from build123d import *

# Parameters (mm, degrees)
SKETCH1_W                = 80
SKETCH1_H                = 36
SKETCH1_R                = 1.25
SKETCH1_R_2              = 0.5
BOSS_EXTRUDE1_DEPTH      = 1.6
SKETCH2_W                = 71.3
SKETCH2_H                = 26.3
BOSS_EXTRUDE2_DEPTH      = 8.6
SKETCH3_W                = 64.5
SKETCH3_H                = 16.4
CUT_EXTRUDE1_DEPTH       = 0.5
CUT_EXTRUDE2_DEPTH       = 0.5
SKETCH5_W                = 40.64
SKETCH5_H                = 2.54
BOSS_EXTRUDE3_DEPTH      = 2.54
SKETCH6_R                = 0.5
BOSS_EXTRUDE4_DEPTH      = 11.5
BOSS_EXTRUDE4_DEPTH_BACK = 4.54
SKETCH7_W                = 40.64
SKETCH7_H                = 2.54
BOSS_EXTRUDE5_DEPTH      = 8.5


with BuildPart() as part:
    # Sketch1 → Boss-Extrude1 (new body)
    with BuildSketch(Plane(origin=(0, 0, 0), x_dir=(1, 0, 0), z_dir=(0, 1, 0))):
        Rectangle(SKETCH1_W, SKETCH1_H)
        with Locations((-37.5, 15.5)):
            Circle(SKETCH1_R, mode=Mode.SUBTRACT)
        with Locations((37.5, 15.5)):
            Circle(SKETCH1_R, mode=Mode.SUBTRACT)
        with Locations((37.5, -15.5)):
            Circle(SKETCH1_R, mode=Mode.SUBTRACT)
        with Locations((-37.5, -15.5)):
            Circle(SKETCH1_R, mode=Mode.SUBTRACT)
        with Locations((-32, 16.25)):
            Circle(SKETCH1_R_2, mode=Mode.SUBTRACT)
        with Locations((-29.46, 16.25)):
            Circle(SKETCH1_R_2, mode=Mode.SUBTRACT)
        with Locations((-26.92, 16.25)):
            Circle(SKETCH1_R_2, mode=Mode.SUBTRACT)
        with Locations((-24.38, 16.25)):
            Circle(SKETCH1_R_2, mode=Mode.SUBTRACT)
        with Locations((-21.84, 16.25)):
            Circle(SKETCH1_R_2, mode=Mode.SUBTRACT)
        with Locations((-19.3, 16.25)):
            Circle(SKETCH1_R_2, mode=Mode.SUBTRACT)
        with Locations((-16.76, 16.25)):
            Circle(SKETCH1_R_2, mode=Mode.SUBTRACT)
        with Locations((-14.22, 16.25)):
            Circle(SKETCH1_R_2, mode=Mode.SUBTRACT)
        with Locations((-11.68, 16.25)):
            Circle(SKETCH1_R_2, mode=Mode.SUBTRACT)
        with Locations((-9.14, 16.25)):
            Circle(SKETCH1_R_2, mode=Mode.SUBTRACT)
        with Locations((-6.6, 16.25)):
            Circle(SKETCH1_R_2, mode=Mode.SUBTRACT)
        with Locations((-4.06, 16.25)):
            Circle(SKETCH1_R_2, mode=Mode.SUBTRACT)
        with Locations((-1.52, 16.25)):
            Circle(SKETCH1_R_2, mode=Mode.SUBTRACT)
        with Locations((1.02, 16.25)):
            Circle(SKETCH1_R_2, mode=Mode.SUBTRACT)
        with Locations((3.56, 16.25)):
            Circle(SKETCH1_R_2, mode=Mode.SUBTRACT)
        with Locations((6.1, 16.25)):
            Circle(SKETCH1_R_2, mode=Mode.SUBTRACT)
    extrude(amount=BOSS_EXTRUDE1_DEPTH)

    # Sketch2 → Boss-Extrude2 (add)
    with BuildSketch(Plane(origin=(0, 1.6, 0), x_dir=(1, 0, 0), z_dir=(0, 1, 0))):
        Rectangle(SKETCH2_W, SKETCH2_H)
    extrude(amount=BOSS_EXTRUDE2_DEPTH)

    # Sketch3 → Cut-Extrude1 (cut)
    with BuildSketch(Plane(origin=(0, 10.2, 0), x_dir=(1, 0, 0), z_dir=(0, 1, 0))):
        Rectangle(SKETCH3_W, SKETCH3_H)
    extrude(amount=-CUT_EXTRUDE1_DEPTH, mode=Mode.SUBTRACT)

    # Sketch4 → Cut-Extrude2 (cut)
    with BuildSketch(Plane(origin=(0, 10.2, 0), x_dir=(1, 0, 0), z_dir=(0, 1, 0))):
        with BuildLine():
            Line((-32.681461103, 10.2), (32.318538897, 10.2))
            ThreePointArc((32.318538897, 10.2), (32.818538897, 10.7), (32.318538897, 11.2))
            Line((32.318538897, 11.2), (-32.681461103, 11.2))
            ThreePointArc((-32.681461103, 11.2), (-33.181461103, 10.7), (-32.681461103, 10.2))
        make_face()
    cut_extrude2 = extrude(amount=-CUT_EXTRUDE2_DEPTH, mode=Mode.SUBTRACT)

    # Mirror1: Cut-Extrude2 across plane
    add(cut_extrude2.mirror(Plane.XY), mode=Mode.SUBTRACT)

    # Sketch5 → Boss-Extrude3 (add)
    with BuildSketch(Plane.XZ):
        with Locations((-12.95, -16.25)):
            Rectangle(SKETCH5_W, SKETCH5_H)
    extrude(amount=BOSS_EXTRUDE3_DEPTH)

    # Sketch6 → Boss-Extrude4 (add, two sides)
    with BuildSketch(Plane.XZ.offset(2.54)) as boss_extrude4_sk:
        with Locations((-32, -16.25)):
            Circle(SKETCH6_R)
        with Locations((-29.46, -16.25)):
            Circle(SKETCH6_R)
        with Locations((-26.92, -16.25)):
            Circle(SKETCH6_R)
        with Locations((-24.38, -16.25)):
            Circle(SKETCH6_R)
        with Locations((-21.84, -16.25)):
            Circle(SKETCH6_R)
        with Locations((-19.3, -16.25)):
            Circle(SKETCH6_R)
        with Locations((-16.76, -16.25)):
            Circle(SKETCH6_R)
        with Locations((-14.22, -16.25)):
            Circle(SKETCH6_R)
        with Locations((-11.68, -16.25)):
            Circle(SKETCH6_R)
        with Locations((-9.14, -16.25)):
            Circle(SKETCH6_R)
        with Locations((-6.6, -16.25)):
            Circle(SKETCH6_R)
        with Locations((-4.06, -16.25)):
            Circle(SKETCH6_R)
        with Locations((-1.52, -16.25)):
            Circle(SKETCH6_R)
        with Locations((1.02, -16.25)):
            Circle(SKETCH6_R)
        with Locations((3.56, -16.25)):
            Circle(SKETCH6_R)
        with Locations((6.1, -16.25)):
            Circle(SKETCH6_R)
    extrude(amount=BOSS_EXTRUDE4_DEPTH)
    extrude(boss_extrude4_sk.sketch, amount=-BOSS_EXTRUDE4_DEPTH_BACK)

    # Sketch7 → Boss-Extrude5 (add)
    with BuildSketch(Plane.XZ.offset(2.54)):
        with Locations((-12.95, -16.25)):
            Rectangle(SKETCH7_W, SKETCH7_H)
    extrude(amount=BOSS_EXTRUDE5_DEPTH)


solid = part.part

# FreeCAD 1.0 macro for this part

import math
import FreeCAD as App
import Part
import Sketcher

V = App.Vector


def add_polygon(sketch, points):
    """Adds a closed chain of lines whose ends are joined by coincident constraints."""
    first, n = sketch.GeometryCount, len(points)
    for a, b in zip(points, points[1:] + points[:1]):
        sketch.addGeometry(Part.LineSegment(App.Vector(*a, 0), App.Vector(*b, 0)), False)
    for i in range(n):
        sketch.addConstraint(Sketcher.Constraint("Coincident", first + i, 2, first + (i + 1) % n, 1))

doc = App.newDocument("Part")
body = doc.addObject("PartDesign::Body", "Body")

sketch1 = body.newObject("Sketcher::SketchObject", "Sketch")
sketch1.AttachmentSupport = (doc.getObject("XZ_Plane"), [""])
sketch1.MapMode = "FlatFace"
add_polygon(sketch1, [(-40, -18), (-40, 18), (40, 18), (40, -18)])
sketch1.addGeometry(Part.Circle(V(-37.5, 15.5, 0), V(0, 0, 1), 1.2), False)
sketch1.addGeometry(Part.Circle(V(37.5, 15.5, 0), V(0, 0, 1), 1.2), False)
sketch1.addGeometry(Part.Circle(V(-37.5, -15.5, 0), V(0, 0, 1), 1.2), False)
sketch1.addGeometry(Part.Circle(V(-32, -16.2, 0), V(0, 0, 1), 0.5), False)
sketch1.addGeometry(Part.Circle(V(-29.5, -16.2, 0), V(0, 0, 1), 0.5), False)
sketch1.addGeometry(Part.Circle(V(-26.9, -16.2, 0), V(0, 0, 1), 0.5), False)
sketch1.addGeometry(Part.Circle(V(-24.4, -16.2, 0), V(0, 0, 1), 0.5), False)
sketch1.addGeometry(Part.Circle(V(-21.8, -16.2, 0), V(0, 0, 1), 0.5), False)
sketch1.addGeometry(Part.Circle(V(-19.3, -16.2, 0), V(0, 0, 1), 0.5), False)
sketch1.addGeometry(Part.Circle(V(-16.8, -16.2, 0), V(0, 0, 1), 0.5), False)
sketch1.addGeometry(Part.Circle(V(-14.2, -16.2, 0), V(0, 0, 1), 0.5), False)
sketch1.addGeometry(Part.Circle(V(-11.7, -16.2, 0), V(0, 0, 1), 0.5), False)
sketch1.addGeometry(Part.Circle(V(-9.1, -16.2, 0), V(0, 0, 1), 0.5), False)
sketch1.addGeometry(Part.Circle(V(-6.6, -16.2, 0), V(0, 0, 1), 0.5), False)
sketch1.addGeometry(Part.Circle(V(-4.1, -16.2, 0), V(0, 0, 1), 0.5), False)
sketch1.addGeometry(Part.Circle(V(-1.5, -16.2, 0), V(0, 0, 1), 0.5), False)
sketch1.addGeometry(Part.Circle(V(1, -16.2, 0), V(0, 0, 1), 0.5), False)
sketch1.addGeometry(Part.Circle(V(3.6, -16.2, 0), V(0, 0, 1), 0.5), False)
sketch1.addGeometry(Part.Circle(V(6.1, -16.2, 0), V(0, 0, 1), 0.5), False)
sketch1.addGeometry(Part.Circle(V(37.5, -15.5, 0), V(0, 0, 1), 1.2), False)
sketch1.addConstraint(Sketcher.Constraint("Vertical", 0))
sketch1.addConstraint(Sketcher.Constraint("Horizontal", 1))
sketch1.addConstraint(Sketcher.Constraint("Vertical", 2))
sketch1.addConstraint(Sketcher.Constraint("Horizontal", 3))
sketch1.addConstraint(Sketcher.Constraint("Equal", 4, 5))
sketch1.addConstraint(Sketcher.Constraint("Equal", 5, 6))
sketch1.addConstraint(Sketcher.Constraint("Equal", 7, 8))
sketch1.addConstraint(Sketcher.Constraint("Equal", 8, 9))
sketch1.addConstraint(Sketcher.Constraint("Equal", 9, 10))
sketch1.addConstraint(Sketcher.Constraint("Equal", 10, 11))
sketch1.addConstraint(Sketcher.Constraint("Equal", 11, 12))
sketch1.addConstraint(Sketcher.Constraint("Equal", 12, 13))
sketch1.addConstraint(Sketcher.Constraint("Equal", 13, 14))
sketch1.addConstraint(Sketcher.Constraint("Equal", 14, 15))
sketch1.addConstraint(Sketcher.Constraint("Equal", 15, 16))
sketch1.addConstraint(Sketcher.Constraint("Equal", 16, 17))
sketch1.addConstraint(Sketcher.Constraint("Equal", 17, 18))
sketch1.addConstraint(Sketcher.Constraint("Equal", 18, 19))
sketch1.addConstraint(Sketcher.Constraint("Equal", 19, 20))
sketch1.addConstraint(Sketcher.Constraint("Equal", 20, 21))
sketch1.addConstraint(Sketcher.Constraint("Equal", 21, 22))
sketch1.addConstraint(Sketcher.Constraint("Equal", 6, 23))
sketch1.addConstraint(Sketcher.Constraint("Symmetric", 5, 3, 6, 3, -1, 1))
sketch1.addConstraint(Sketcher.Constraint("Symmetric", 4, 3, 23, 3, -1, 1))
sketch1.addConstraint(Sketcher.Constraint("Symmetric", 0, 2, 2, 2, -1, 1))
sketch1.addConstraint(Sketcher.Constraint("Symmetric", 4, 3, 5, 3, -2))
sketch1.addConstraint(Sketcher.Constraint("Horizontal", 7, 3, 8, 3))
sketch1.addConstraint(Sketcher.Constraint("Horizontal", 8, 3, 9, 3))
sketch1.addConstraint(Sketcher.Constraint("Horizontal", 9, 3, 10, 3))
sketch1.addConstraint(Sketcher.Constraint("Horizontal", 10, 3, 11, 3))
sketch1.addConstraint(Sketcher.Constraint("Horizontal", 11, 3, 12, 3))
sketch1.addConstraint(Sketcher.Constraint("Horizontal", 12, 3, 13, 3))
sketch1.addConstraint(Sketcher.Constraint("Horizontal", 13, 3, 14, 3))
sketch1.addConstraint(Sketcher.Constraint("Horizontal", 14, 3, 15, 3))
sketch1.addConstraint(Sketcher.Constraint("Horizontal", 15, 3, 16, 3))
sketch1.addConstraint(Sketcher.Constraint("Horizontal", 16, 3, 17, 3))
sketch1.addConstraint(Sketcher.Constraint("Horizontal", 17, 3, 18, 3))
sketch1.addConstraint(Sketcher.Constraint("Horizontal", 18, 3, 19, 3))
sketch1.addConstraint(Sketcher.Constraint("Horizontal", 19, 3, 20, 3))
sketch1.addConstraint(Sketcher.Constraint("Horizontal", 20, 3, 21, 3))
sketch1.addConstraint(Sketcher.Constraint("Horizontal", 21, 3, 22, 3))
sketch1.addConstraint(Sketcher.Constraint("Diameter", 7, 1.0))
sketch1.addConstraint(Sketcher.Constraint("Diameter", 4, 2.5))
sketch1.addConstraint(Sketcher.Constraint("DistanceX", 1, 1, 1, 2, 80.0))
sketch1.addConstraint(Sketcher.Constraint("DistanceY", 0, 1, 0, 2, 36.0))
sketch1.addConstraint(Sketcher.Constraint("DistanceX", 7, 3, -1, 1, 32.0))
sketch1.addConstraint(Sketcher.Constraint("DistanceX", 4, 3, 5, 3, 75.0))
sketch1.addConstraint(Sketcher.Constraint("DistanceY", 6, 3, 4, 3, 31.0))
sketch1.addConstraint(Sketcher.Constraint("DistanceX", 12, 3, -1, 1, 19.3))
sketch1.addConstraint(Sketcher.Constraint("DistanceX", 17, 3, -1, 1, 6.6))
sketch1.addConstraint(Sketcher.Constraint("DistanceX", -1, 1, 22, 3, 6.1))
sketch1.addConstraint(Sketcher.Constraint("DistanceX", 8, 3, 13, 3, 12.7))
sketch1.addConstraint(Sketcher.Constraint("DistanceX", 9, 3, 14, 3, 12.7))
sketch1.addConstraint(Sketcher.Constraint("DistanceX", 10, 3, 15, 3, 12.7))
sketch1.addConstraint(Sketcher.Constraint("DistanceX", 11, 3, 16, 3, 12.7))
sketch1.addConstraint(Sketcher.Constraint("DistanceX", 13, 3, 18, 3, 12.7))
sketch1.addConstraint(Sketcher.Constraint("DistanceX", 14, 3, 19, 3, 12.7))
sketch1.addConstraint(Sketcher.Constraint("DistanceX", 15, 3, 20, 3, 12.7))
sketch1.addConstraint(Sketcher.Constraint("DistanceX", 16, 3, 21, 3, 12.7))
sketch1.addConstraint(Sketcher.Constraint("DistanceY", 7, 3, -1, 1, 16.25))
sketch1.addConstraint(Sketcher.Constraint("DistanceX", 8, 3, -1, 1, 29.46))
sketch1.addConstraint(Sketcher.Constraint("DistanceX", 9, 3, -1, 1, 26.92))
sketch1.addConstraint(Sketcher.Constraint("DistanceX", 10, 3, -1, 1, 24.38))
sketch1.addConstraint(Sketcher.Constraint("DistanceX", 11, 3, -1, 1, 21.84))
pad1 = body.newObject("PartDesign::Pad", "Pad")
pad1.Profile = sketch1
pad1.Length = 1.6
pad1.Reversed = True

sketch2 = body.newObject("Sketcher::SketchObject", "Sketch001")
sketch2.AttachmentSupport = (doc.getObject("XZ_Plane"), [""])
sketch2.MapMode = "FlatFace"
sketch2.AttachmentOffset = App.Placement(V(0, 0, -1.6), App.Rotation())
add_polygon(sketch2, [(-36, -13), (-36, 13), (36, 13), (36, -13)])
sketch2.addConstraint(Sketcher.Constraint("Vertical", 0))
sketch2.addConstraint(Sketcher.Constraint("Horizontal", 1))
sketch2.addConstraint(Sketcher.Constraint("Vertical", 2))
sketch2.addConstraint(Sketcher.Constraint("Horizontal", 3))
sketch2.addConstraint(Sketcher.Constraint("Symmetric", 0, 2, 2, 2, -1, 1))
sketch2.addConstraint(Sketcher.Constraint("DistanceX", 1, 1, 1, 2, 71.3))
sketch2.addConstraint(Sketcher.Constraint("DistanceY", 0, 1, 0, 2, 26.3))
pad2 = body.newObject("PartDesign::Pad", "Pad001")
pad2.Profile = sketch2
pad2.Length = 8.6
pad2.Reversed = True

sketch3 = body.newObject("Sketcher::SketchObject", "Sketch002")
sketch3.AttachmentSupport = (doc.getObject("XZ_Plane"), [""])
sketch3.MapMode = "FlatFace"
sketch3.AttachmentOffset = App.Placement(V(0, 0, -10.2), App.Rotation())
add_polygon(sketch3, [(-32, -8), (-32, 8), (32, 8), (32, -8)])
sketch3.addConstraint(Sketcher.Constraint("Vertical", 0))
sketch3.addConstraint(Sketcher.Constraint("Horizontal", 1))
sketch3.addConstraint(Sketcher.Constraint("Vertical", 2))
sketch3.addConstraint(Sketcher.Constraint("Horizontal", 3))
sketch3.addConstraint(Sketcher.Constraint("Symmetric", 0, 2, 2, 2, -1, 1))
sketch3.addConstraint(Sketcher.Constraint("DistanceX", 1, 1, 1, 2, 64.5))
sketch3.addConstraint(Sketcher.Constraint("DistanceY", 0, 1, 0, 2, 16.4))
pocket1 = body.newObject("PartDesign::Pocket", "Pocket")
pocket1.Profile = sketch3
pocket1.Length = 0.5
pocket1.Reversed = True

sketch4 = body.newObject("Sketcher::SketchObject", "Sketch003")
sketch4.AttachmentSupport = (doc.getObject("XZ_Plane"), [""])
sketch4.MapMode = "FlatFace"
sketch4.AttachmentOffset = App.Placement(V(0, 0, -10.2), App.Rotation())
sketch4.addGeometry(Part.LineSegment(V(-32.7, -10.2, 0), V(32.3, -10.2, 0)), False)
sketch4.addGeometry(Part.ArcOfCircle(Part.Circle(V(32.3, -10.7, 0), V(0, 0, 1), 0.5), math.radians(-90), math.radians(90)), False)
sketch4.addGeometry(Part.LineSegment(V(32.3, -11.2, 0), V(-32.7, -11.2, 0)), False)
sketch4.addGeometry(Part.ArcOfCircle(Part.Circle(V(-32.7, -10.7, 0), V(0, 0, 1), 0.5), math.radians(90), math.radians(270)), False)
sketch4.addConstraint(Sketcher.Constraint("Tangent", 0, 2, 1, 2))
sketch4.addConstraint(Sketcher.Constraint("Tangent", 1, 1, 2, 1))
sketch4.addConstraint(Sketcher.Constraint("Tangent", 2, 2, 3, 2))
sketch4.addConstraint(Sketcher.Constraint("Tangent", 3, 1, 0, 1))
sketch4.addConstraint(Sketcher.Constraint("Horizontal", 0))
sketch4.addConstraint(Sketcher.Constraint("Horizontal", 2))
sketch4.addConstraint(Sketcher.Constraint("Radius", 1, 0.5))
sketch4.addConstraint(Sketcher.Constraint("DistanceX", 0, 1, 0, 2, 65.0))
sketch4.addConstraint(Sketcher.Constraint("DistanceY", 1, 3, -1, 1, 10.7))
sketch4.addConstraint(Sketcher.Constraint("DistanceX", -1, 1, 1, 3, 32.318539))
pocket2 = body.newObject("PartDesign::Pocket", "Pocket001")
pocket2.Profile = sketch4
pocket2.Length = 0.5
pocket2.Reversed = True
doc.recompute()

mirrored = body.newObject("PartDesign::Mirrored", "Mirrored")
mirrored.Originals = [pocket2]
mirrored.MirrorPlane = (doc.getObject("XY_Plane"), [""])
body.Tip = mirrored

sketch5 = body.newObject("Sketcher::SketchObject", "Sketch004")
sketch5.AttachmentSupport = (doc.getObject("XZ_Plane"), [""])
sketch5.MapMode = "FlatFace"
add_polygon(sketch5, [(-33.3, -15), (-33.3, -17.5), (7.4, -17.5), (7.4, -15)])
sketch5.addConstraint(Sketcher.Constraint("Vertical", 0))
sketch5.addConstraint(Sketcher.Constraint("Horizontal", 1))
sketch5.addConstraint(Sketcher.Constraint("Vertical", 2))
sketch5.addConstraint(Sketcher.Constraint("Horizontal", 3))
sketch5.addConstraint(Sketcher.Constraint("DistanceX", 1, 1, 1, 2, 40.64))
sketch5.addConstraint(Sketcher.Constraint("DistanceY", 0, 2, 0, 1, 2.54))
sketch5.addConstraint(Sketcher.Constraint("DistanceX", 0, 2, -1, 1, 33.27))
sketch5.addConstraint(Sketcher.Constraint("DistanceY", 0, 2, -1, 1, 17.52))
pad3 = body.newObject("PartDesign::Pad", "Pad002")
pad3.Profile = sketch5
pad3.Length = 2.54

sketch6 = body.newObject("Sketcher::SketchObject", "Sketch005")
sketch6.AttachmentSupport = (doc.getObject("XZ_Plane"), [""])
sketch6.MapMode = "FlatFace"
sketch6.AttachmentOffset = App.Placement(V(0, 0, 2.54), App.Rotation())
sketch6.addGeometry(Part.Circle(V(-32, -16.2, 0), V(0, 0, 1), 0.5), False)
sketch6.addGeometry(Part.Circle(V(-29.5, -16.2, 0), V(0, 0, 1), 0.5), False)
sketch6.addGeometry(Part.Circle(V(-26.9, -16.2, 0), V(0, 0, 1), 0.5), False)
sketch6.addGeometry(Part.Circle(V(-24.4, -16.2, 0), V(0, 0, 1), 0.5), False)
sketch6.addGeometry(Part.Circle(V(-21.8, -16.2, 0), V(0, 0, 1), 0.5), False)
sketch6.addGeometry(Part.Circle(V(-19.3, -16.2, 0), V(0, 0, 1), 0.5), False)
sketch6.addGeometry(Part.Circle(V(-16.8, -16.2, 0), V(0, 0, 1), 0.5), False)
sketch6.addGeometry(Part.Circle(V(-14.2, -16.2, 0), V(0, 0, 1), 0.5), False)
sketch6.addGeometry(Part.Circle(V(-11.7, -16.2, 0), V(0, 0, 1), 0.5), False)
sketch6.addGeometry(Part.Circle(V(-9.1, -16.2, 0), V(0, 0, 1), 0.5), False)
sketch6.addGeometry(Part.Circle(V(-6.6, -16.2, 0), V(0, 0, 1), 0.5), False)
sketch6.addGeometry(Part.Circle(V(-4.1, -16.2, 0), V(0, 0, 1), 0.5), False)
sketch6.addGeometry(Part.Circle(V(-1.5, -16.2, 0), V(0, 0, 1), 0.5), False)
sketch6.addGeometry(Part.Circle(V(1, -16.2, 0), V(0, 0, 1), 0.5), False)
sketch6.addGeometry(Part.Circle(V(3.6, -16.2, 0), V(0, 0, 1), 0.5), False)
sketch6.addGeometry(Part.Circle(V(6.1, -16.2, 0), V(0, 0, 1), 0.5), False)
sketch6.addConstraint(Sketcher.Constraint("Equal", 0, 1))
sketch6.addConstraint(Sketcher.Constraint("Equal", 1, 2))
sketch6.addConstraint(Sketcher.Constraint("Equal", 2, 3))
sketch6.addConstraint(Sketcher.Constraint("Equal", 3, 4))
sketch6.addConstraint(Sketcher.Constraint("Equal", 4, 5))
sketch6.addConstraint(Sketcher.Constraint("Equal", 5, 6))
sketch6.addConstraint(Sketcher.Constraint("Equal", 6, 7))
sketch6.addConstraint(Sketcher.Constraint("Equal", 7, 8))
sketch6.addConstraint(Sketcher.Constraint("Equal", 8, 9))
sketch6.addConstraint(Sketcher.Constraint("Equal", 9, 10))
sketch6.addConstraint(Sketcher.Constraint("Equal", 10, 11))
sketch6.addConstraint(Sketcher.Constraint("Equal", 11, 12))
sketch6.addConstraint(Sketcher.Constraint("Equal", 12, 13))
sketch6.addConstraint(Sketcher.Constraint("Equal", 13, 14))
sketch6.addConstraint(Sketcher.Constraint("Equal", 14, 15))
sketch6.addConstraint(Sketcher.Constraint("Horizontal", 0, 3, 1, 3))
sketch6.addConstraint(Sketcher.Constraint("Horizontal", 1, 3, 2, 3))
sketch6.addConstraint(Sketcher.Constraint("Horizontal", 2, 3, 3, 3))
sketch6.addConstraint(Sketcher.Constraint("Horizontal", 3, 3, 4, 3))
sketch6.addConstraint(Sketcher.Constraint("Horizontal", 4, 3, 5, 3))
sketch6.addConstraint(Sketcher.Constraint("Horizontal", 5, 3, 6, 3))
sketch6.addConstraint(Sketcher.Constraint("Horizontal", 6, 3, 7, 3))
sketch6.addConstraint(Sketcher.Constraint("Horizontal", 7, 3, 8, 3))
sketch6.addConstraint(Sketcher.Constraint("Horizontal", 8, 3, 9, 3))
sketch6.addConstraint(Sketcher.Constraint("Horizontal", 9, 3, 10, 3))
sketch6.addConstraint(Sketcher.Constraint("Horizontal", 10, 3, 11, 3))
sketch6.addConstraint(Sketcher.Constraint("Horizontal", 11, 3, 12, 3))
sketch6.addConstraint(Sketcher.Constraint("Horizontal", 12, 3, 13, 3))
sketch6.addConstraint(Sketcher.Constraint("Horizontal", 13, 3, 14, 3))
sketch6.addConstraint(Sketcher.Constraint("Horizontal", 14, 3, 15, 3))
sketch6.addConstraint(Sketcher.Constraint("Diameter", 0, 1.0))
sketch6.addConstraint(Sketcher.Constraint("DistanceX", 0, 3, -1, 1, 32.0))
sketch6.addConstraint(Sketcher.Constraint("DistanceX", 5, 3, -1, 1, 19.3))
sketch6.addConstraint(Sketcher.Constraint("DistanceX", 10, 3, -1, 1, 6.6))
sketch6.addConstraint(Sketcher.Constraint("DistanceX", -1, 1, 15, 3, 6.1))
sketch6.addConstraint(Sketcher.Constraint("DistanceX", 1, 3, 6, 3, 12.7))
sketch6.addConstraint(Sketcher.Constraint("DistanceX", 2, 3, 7, 3, 12.7))
sketch6.addConstraint(Sketcher.Constraint("DistanceX", 3, 3, 8, 3, 12.7))
sketch6.addConstraint(Sketcher.Constraint("DistanceX", 4, 3, 9, 3, 12.7))
sketch6.addConstraint(Sketcher.Constraint("DistanceX", 6, 3, 11, 3, 12.7))
sketch6.addConstraint(Sketcher.Constraint("DistanceX", 7, 3, 12, 3, 12.7))
sketch6.addConstraint(Sketcher.Constraint("DistanceX", 8, 3, 13, 3, 12.7))
sketch6.addConstraint(Sketcher.Constraint("DistanceX", 9, 3, 14, 3, 12.7))
sketch6.addConstraint(Sketcher.Constraint("DistanceY", 0, 3, -1, 1, 16.25))
sketch6.addConstraint(Sketcher.Constraint("DistanceX", 1, 3, -1, 1, 29.46))
sketch6.addConstraint(Sketcher.Constraint("DistanceX", 2, 3, -1, 1, 26.92))
sketch6.addConstraint(Sketcher.Constraint("DistanceX", 3, 3, -1, 1, 24.38))
sketch6.addConstraint(Sketcher.Constraint("DistanceX", 4, 3, -1, 1, 21.84))
pad4 = body.newObject("PartDesign::Pad", "Pad003")
pad4.Profile = sketch6
pad4.Type = "TwoLengths"
pad4.Length = 11.5
pad4.Length2 = 4.54

sketch7 = body.newObject("Sketcher::SketchObject", "Sketch006")
sketch7.AttachmentSupport = (doc.getObject("XZ_Plane"), [""])
sketch7.MapMode = "FlatFace"
sketch7.AttachmentOffset = App.Placement(V(0, 0, 2.54), App.Rotation())
add_polygon(sketch7, [(-33.3, -15), (-33.3, -17.5), (7.4, -17.5), (7.4, -15)])
sketch7.addConstraint(Sketcher.Constraint("Vertical", 0))
sketch7.addConstraint(Sketcher.Constraint("Horizontal", 1))
sketch7.addConstraint(Sketcher.Constraint("Vertical", 2))
sketch7.addConstraint(Sketcher.Constraint("Horizontal", 3))
sketch7.addConstraint(Sketcher.Constraint("DistanceX", 1, 1, 1, 2, 40.64))
sketch7.addConstraint(Sketcher.Constraint("DistanceY", 0, 2, 0, 1, 2.54))
sketch7.addConstraint(Sketcher.Constraint("DistanceX", 0, 2, -1, 1, 33.27))
sketch7.addConstraint(Sketcher.Constraint("DistanceY", 0, 2, -1, 1, 17.52))
pad5 = body.newObject("PartDesign::Pad", "Pad004")
pad5.Profile = sketch7
pad5.Length = 8.5

doc.recompute()
